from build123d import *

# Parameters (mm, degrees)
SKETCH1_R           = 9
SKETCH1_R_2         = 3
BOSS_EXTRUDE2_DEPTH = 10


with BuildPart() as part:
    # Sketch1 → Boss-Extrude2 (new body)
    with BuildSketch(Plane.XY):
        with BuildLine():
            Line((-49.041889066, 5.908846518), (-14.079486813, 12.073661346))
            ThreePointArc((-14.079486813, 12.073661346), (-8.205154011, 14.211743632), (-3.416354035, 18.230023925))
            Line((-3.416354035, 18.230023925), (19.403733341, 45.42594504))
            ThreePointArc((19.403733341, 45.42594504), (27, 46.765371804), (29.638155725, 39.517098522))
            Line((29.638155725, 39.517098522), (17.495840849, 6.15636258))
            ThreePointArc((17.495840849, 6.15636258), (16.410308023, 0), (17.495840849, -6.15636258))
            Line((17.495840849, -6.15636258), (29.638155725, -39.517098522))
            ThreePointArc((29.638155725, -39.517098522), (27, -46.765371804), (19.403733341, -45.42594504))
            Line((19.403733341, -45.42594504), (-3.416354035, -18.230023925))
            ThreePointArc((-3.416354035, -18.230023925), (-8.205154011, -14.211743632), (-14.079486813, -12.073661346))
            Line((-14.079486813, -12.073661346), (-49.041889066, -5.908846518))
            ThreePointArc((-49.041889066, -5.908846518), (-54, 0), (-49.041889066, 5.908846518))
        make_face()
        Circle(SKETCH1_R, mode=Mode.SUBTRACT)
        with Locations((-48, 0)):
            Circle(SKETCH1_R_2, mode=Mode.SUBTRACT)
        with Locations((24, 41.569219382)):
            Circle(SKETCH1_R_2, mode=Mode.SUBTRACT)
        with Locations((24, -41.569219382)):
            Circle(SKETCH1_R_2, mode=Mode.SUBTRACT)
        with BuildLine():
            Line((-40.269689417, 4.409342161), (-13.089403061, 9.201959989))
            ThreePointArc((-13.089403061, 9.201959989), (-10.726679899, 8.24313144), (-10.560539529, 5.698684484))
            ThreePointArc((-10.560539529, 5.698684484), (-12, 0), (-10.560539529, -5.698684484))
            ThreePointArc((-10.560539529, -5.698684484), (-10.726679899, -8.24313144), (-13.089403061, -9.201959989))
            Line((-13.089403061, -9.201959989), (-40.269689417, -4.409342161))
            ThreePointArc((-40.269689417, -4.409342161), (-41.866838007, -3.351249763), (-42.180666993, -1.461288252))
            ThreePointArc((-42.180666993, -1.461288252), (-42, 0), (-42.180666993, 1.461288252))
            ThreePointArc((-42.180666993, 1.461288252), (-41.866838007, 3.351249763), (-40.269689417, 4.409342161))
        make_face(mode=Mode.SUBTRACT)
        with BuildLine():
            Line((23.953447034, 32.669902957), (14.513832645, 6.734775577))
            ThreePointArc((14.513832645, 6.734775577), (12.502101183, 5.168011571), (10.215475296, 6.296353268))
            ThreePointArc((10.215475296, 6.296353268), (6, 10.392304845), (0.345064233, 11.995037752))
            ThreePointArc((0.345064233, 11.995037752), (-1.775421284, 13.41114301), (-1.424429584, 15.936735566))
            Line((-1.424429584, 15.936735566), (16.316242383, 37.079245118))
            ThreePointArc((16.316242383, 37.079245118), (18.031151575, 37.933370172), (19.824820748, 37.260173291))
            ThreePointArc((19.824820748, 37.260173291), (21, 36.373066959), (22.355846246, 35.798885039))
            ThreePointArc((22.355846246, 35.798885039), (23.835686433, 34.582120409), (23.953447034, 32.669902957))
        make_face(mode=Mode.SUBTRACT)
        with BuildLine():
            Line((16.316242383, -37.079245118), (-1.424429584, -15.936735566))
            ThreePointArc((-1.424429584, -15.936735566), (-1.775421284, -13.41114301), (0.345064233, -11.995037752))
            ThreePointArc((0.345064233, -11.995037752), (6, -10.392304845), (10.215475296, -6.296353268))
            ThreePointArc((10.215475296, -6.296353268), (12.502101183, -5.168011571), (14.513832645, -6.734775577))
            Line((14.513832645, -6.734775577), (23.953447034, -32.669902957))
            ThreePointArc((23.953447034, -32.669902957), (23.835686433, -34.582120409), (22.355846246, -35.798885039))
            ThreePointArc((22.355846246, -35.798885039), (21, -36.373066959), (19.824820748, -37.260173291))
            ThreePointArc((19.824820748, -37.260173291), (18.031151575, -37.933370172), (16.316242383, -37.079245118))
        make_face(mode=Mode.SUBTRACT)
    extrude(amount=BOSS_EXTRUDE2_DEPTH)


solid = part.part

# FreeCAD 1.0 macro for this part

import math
import FreeCAD as App
import Part
import Sketcher
from FreeCAD import Vector
Q = App.Units.Quantity

doc = App.newDocument("Part")
params = doc.addObject("Spreadsheet::Sheet", "Params")
for row, (alias, value) in enumerate([
    ("sketch1_diameter", "6 mm"),
    ("sketch1_diameter2", "18 mm"),
    ("sketch1_radius", "6 mm"),
    ("sketch1_radius2", "18 mm"),
    ("sketch1_radius3", "12 mm"),
    ("pad1_length", "10 mm"),
], start=1):
    params.set(f"A{row}", alias)
    params.set(f"B{row}", "=" + value)
    params.setAlias(f"B{row}", alias)

body = doc.addObject("PartDesign::Body", "Body")

sketch1 = body.newObject("Sketcher::SketchObject", "Sketch")
sketch1.AttachmentSupport = (doc.getObject("XY_Plane"), [""])
sketch1.MapMode = "FlatFace"
sketch1.addGeometry(Part.LineSegment(Vector(-14.079487, 12.073661, 0), Vector(-49.041889, 5.908847, 0)), False)
sketch1.addGeometry(Part.ArcOfCircle(Part.Circle(Vector(-48, 0, 0), Vector(0, 0, 1), 6), math.radians(100), math.radians(260)), False)
sketch1.addGeometry(Part.LineSegment(Vector(-49.041889, -5.908847, 0), Vector(-14.079487, -12.073661, 0)), False)
sketch1.addGeometry(Part.ArcOfCircle(Part.Circle(Vector(-17.205154, -29.800201, 0), Vector(0, 0, 1), 18), math.radians(40), math.radians(80)), False)
sketch1.addGeometry(Part.LineSegment(Vector(-3.416354, -18.230024, 0), Vector(19.403733, -45.425945, 0)), False)
sketch1.addGeometry(Part.ArcOfCircle(Part.Circle(Vector(24, -41.569219, 0), Vector(0, 0, 1), 6), math.radians(-140), math.radians(20)), False)
sketch1.addGeometry(Part.LineSegment(Vector(29.638156, -39.517099, 0), Vector(17.495841, -6.156363, 0)), False)
sketch1.addGeometry(Part.ArcOfCircle(Part.Circle(Vector(34.410308, 0, 0), Vector(0, 0, 1), 18), math.radians(160), math.radians(200)), False)
sketch1.addGeometry(Part.LineSegment(Vector(17.495841, 6.156363, 0), Vector(29.638156, 39.517099, 0)), False)
sketch1.addGeometry(Part.ArcOfCircle(Part.Circle(Vector(24, 41.569219, 0), Vector(0, 0, 1), 6), math.radians(-20), math.radians(140)), False)
sketch1.addGeometry(Part.LineSegment(Vector(19.403733, 45.425945, 0), Vector(-3.416354, 18.230024, 0)), False)
sketch1.addGeometry(Part.ArcOfCircle(Part.Circle(Vector(-17.205154, 29.800201, 0), Vector(0, 0, 1), 18), math.radians(-80), math.radians(-40)), False)
sketch1.addGeometry(Part.Circle(Vector(24, -41.569219, 0), Vector(0, 0, 1), 3), False)
sketch1.addGeometry(Part.LineSegment(Vector(16.316242, -37.079245, 0), Vector(-1.42443, -15.936736, 0)), False)
sketch1.addGeometry(Part.ArcOfCircle(Part.Circle(Vector(0.414077, -14.394045, 0), Vector(0, 0, 1), 2.4), math.radians(91.647787), math.radians(220)), False)
sketch1.addGeometry(Part.ArcOfCircle(Part.Circle(Vector(0, 0, 0), Vector(0, 0, 1), 12), math.radians(-88.352213), math.radians(-31.647787)), False)
sketch1.addGeometry(Part.ArcOfCircle(Part.Circle(Vector(12.25857, -7.555624, 0), Vector(0, 0, 1), 2.4), math.radians(20), math.radians(148.352213)), False)
sketch1.addGeometry(Part.LineSegment(Vector(14.513833, -6.734776, 0), Vector(23.953447, -32.669903, 0)), False)
sketch1.addGeometry(Part.ArcOfCircle(Part.Circle(Vector(21.698185, -33.490751, 0), Vector(0, 0, 1), 2.4), math.radians(-74.096044), math.radians(20)), False)
sketch1.addGeometry(Part.ArcOfCircle(Part.Circle(Vector(24, -41.569219, 0), Vector(0, 0, 1), 6), math.radians(105.903956), math.radians(134.096044)), False)
sketch1.addGeometry(Part.ArcOfCircle(Part.Circle(Vector(18.154749, -35.536555, 0), Vector(0, 0, 1), 2.4), math.radians(-140), math.radians(-45.903956)), False)
sketch1.addGeometry(Part.LineSegment(Vector(23.953447, 32.669903, 0), Vector(14.513833, 6.734776, 0)), False)
sketch1.addGeometry(Part.ArcOfCircle(Part.Circle(Vector(12.25857, 7.555624, 0), Vector(0, 0, 1), 2.4), math.radians(-148.352213), math.radians(-20)), False)
sketch1.addGeometry(Part.ArcOfCircle(Part.Circle(Vector(0, 0, 0), Vector(0, 0, 1), 12), math.radians(31.647787), math.radians(88.352213)), False)
sketch1.addGeometry(Part.ArcOfCircle(Part.Circle(Vector(0.414077, 14.394045, 0), Vector(0, 0, 1), 2.4), math.radians(140), math.radians(268.352213)), False)
sketch1.addGeometry(Part.LineSegment(Vector(-1.42443, 15.936736, 0), Vector(16.316242, 37.079245, 0)), False)
sketch1.addGeometry(Part.ArcOfCircle(Part.Circle(Vector(18.154749, 35.536555, 0), Vector(0, 0, 1), 2.4), math.radians(45.903956), math.radians(140)), False)
sketch1.addGeometry(Part.ArcOfCircle(Part.Circle(Vector(24, 41.569219, 0), Vector(0, 0, 1), 6), math.radians(-134.096044), math.radians(-105.903956)), False)
sketch1.addGeometry(Part.ArcOfCircle(Part.Circle(Vector(21.698185, 33.490751, 0), Vector(0, 0, 1), 2.4), math.radians(-20), math.radians(74.096044)), False)
sketch1.addGeometry(Part.Circle(Vector(0, 0, 0), Vector(0, 0, 1), 9), False)
sketch1.addGeometry(Part.Circle(Vector(24, 41.569219, 0), Vector(0, 0, 1), 3), False)
sketch1.addGeometry(Part.LineSegment(Vector(-40.269689, 4.409342, 0), Vector(-13.089403, 9.20196, 0)), False)
sketch1.addGeometry(Part.ArcOfCircle(Part.Circle(Vector(-12.672647, 6.838421, 0), Vector(0, 0, 1), 2.4), math.radians(-28.352213), math.radians(100)), False)
sketch1.addGeometry(Part.ArcOfCircle(Part.Circle(Vector(0, 0, 0), Vector(0, 0, 1), 12), math.radians(151.647787), math.radians(208.352213)), False)
sketch1.addGeometry(Part.ArcOfCircle(Part.Circle(Vector(-12.672647, -6.838421, 0), Vector(0, 0, 1), 2.4), math.radians(-100), math.radians(28.352213)), False)
sketch1.addGeometry(Part.LineSegment(Vector(-13.089403, -9.20196, 0), Vector(-40.269689, -4.409342, 0)), False)
sketch1.addGeometry(Part.ArcOfCircle(Part.Circle(Vector(-39.852934, -2.045804, 0), Vector(0, 0, 1), 2.4), math.radians(165.903956), math.radians(260)), False)
sketch1.addGeometry(Part.ArcOfCircle(Part.Circle(Vector(-48, 0, 0), Vector(0, 0, 1), 6), math.radians(-14.096044), math.radians(14.096044)), False)
sketch1.addGeometry(Part.ArcOfCircle(Part.Circle(Vector(-39.852934, 2.045804, 0), Vector(0, 0, 1), 2.4), math.radians(100), math.radians(194.096044)), False)
sketch1.addGeometry(Part.Circle(Vector(-48, 0, 0), Vector(0, 0, 1), 3), False)
sketch1.addConstraint(Sketcher.Constraint("Tangent", 0, 2, 1, 1))
sketch1.addConstraint(Sketcher.Constraint("Tangent", 1, 2, 2, 1))
sketch1.addConstraint(Sketcher.Constraint("Tangent", 2, 2, 3, 2))
sketch1.addConstraint(Sketcher.Constraint("Tangent", 3, 1, 4, 1))
sketch1.addConstraint(Sketcher.Constraint("Tangent", 4, 2, 5, 1))
sketch1.addConstraint(Sketcher.Constraint("Tangent", 5, 2, 6, 1))
sketch1.addConstraint(Sketcher.Constraint("Tangent", 6, 2, 7, 2))
sketch1.addConstraint(Sketcher.Constraint("Tangent", 7, 1, 8, 1))
sketch1.addConstraint(Sketcher.Constraint("Tangent", 8, 2, 9, 1))
sketch1.addConstraint(Sketcher.Constraint("Tangent", 9, 2, 10, 1))
sketch1.addConstraint(Sketcher.Constraint("Tangent", 10, 2, 11, 2))
sketch1.addConstraint(Sketcher.Constraint("Tangent", 11, 1, 0, 1))
sketch1.addConstraint(Sketcher.Constraint("Tangent", 13, 2, 14, 2))
sketch1.addConstraint(Sketcher.Constraint("Tangent", 14, 1, 15, 1))
sketch1.addConstraint(Sketcher.Constraint("Tangent", 15, 2, 16, 2))
sketch1.addConstraint(Sketcher.Constraint("Tangent", 16, 1, 17, 1))
sketch1.addConstraint(Sketcher.Constraint("Tangent", 17, 2, 18, 2))
sketch1.addConstraint(Sketcher.Constraint("Tangent", 18, 1, 19, 1))
sketch1.addConstraint(Sketcher.Constraint("Tangent", 19, 2, 20, 2))
sketch1.addConstraint(Sketcher.Constraint("Tangent", 20, 1, 13, 1))
sketch1.addConstraint(Sketcher.Constraint("Tangent", 21, 2, 22, 2))
sketch1.addConstraint(Sketcher.Constraint("Tangent", 22, 1, 23, 1))
sketch1.addConstraint(Sketcher.Constraint("Tangent", 23, 2, 24, 2))
sketch1.addConstraint(Sketcher.Constraint("Tangent", 24, 1, 25, 1))
sketch1.addConstraint(Sketcher.Constraint("Tangent", 25, 2, 26, 2))
sketch1.addConstraint(Sketcher.Constraint("Tangent", 26, 1, 27, 1))
sketch1.addConstraint(Sketcher.Constraint("Tangent", 27, 2, 28, 2))
sketch1.addConstraint(Sketcher.Constraint("Tangent", 28, 1, 21, 1))
sketch1.addConstraint(Sketcher.Constraint("Tangent", 31, 2, 32, 2))
sketch1.addConstraint(Sketcher.Constraint("Tangent", 32, 1, 33, 1))
sketch1.addConstraint(Sketcher.Constraint("Tangent", 33, 2, 34, 2))
sketch1.addConstraint(Sketcher.Constraint("Tangent", 34, 1, 35, 1))
sketch1.addConstraint(Sketcher.Constraint("Tangent", 35, 2, 36, 2))
sketch1.addConstraint(Sketcher.Constraint("Tangent", 36, 1, 37, 1))
sketch1.addConstraint(Sketcher.Constraint("Tangent", 37, 2, 38, 2))
sketch1.addConstraint(Sketcher.Constraint("Tangent", 38, 1, 31, 1))
sketch1.addConstraint(Sketcher.Constraint("Coincident", 15, 3, -1, 1))
sketch1.addConstraint(Sketcher.Constraint("Coincident", 23, 3, -1, 1))
sketch1.addConstraint(Sketcher.Constraint("Coincident", 29, 3, -1, 1))
sketch1.addConstraint(Sketcher.Constraint("Coincident", 33, 3, -1, 1))
sketch1.addConstraint(Sketcher.Constraint("Coincident", 12, 3, 5, 3))
sketch1.addConstraint(Sketcher.Constraint("Coincident", 19, 3, 5, 3))
sketch1.addConstraint(Sketcher.Constraint("Coincident", 27, 3, 9, 3))
sketch1.addConstraint(Sketcher.Constraint("Coincident", 30, 3, 9, 3))
sketch1.addConstraint(Sketcher.Constraint("Coincident", 37, 3, 1, 3))
sketch1.addConstraint(Sketcher.Constraint("Coincident", 39, 3, 1, 3))
sketch1.addConstraint(Sketcher.Constraint("Equal", 1, 5))
sketch1.addConstraint(Sketcher.Constraint("Equal", 3, 7))
sketch1.addConstraint(Sketcher.Constraint("Equal", 5, 9))
sketch1.addConstraint(Sketcher.Constraint("Equal", 7, 11))
sketch1.addConstraint(Sketcher.Constraint("Equal", 14, 16))
sketch1.addConstraint(Sketcher.Constraint("Equal", 16, 18))
sketch1.addConstraint(Sketcher.Constraint("Equal", 9, 19))
sketch1.addConstraint(Sketcher.Constraint("Equal", 18, 20))
sketch1.addConstraint(Sketcher.Constraint("Equal", 20, 22))
sketch1.addConstraint(Sketcher.Constraint("Equal", 15, 23))
sketch1.addConstraint(Sketcher.Constraint("Equal", 22, 24))
sketch1.addConstraint(Sketcher.Constraint("Equal", 24, 26))
sketch1.addConstraint(Sketcher.Constraint("Equal", 19, 27))
sketch1.addConstraint(Sketcher.Constraint("Equal", 26, 28))
sketch1.addConstraint(Sketcher.Constraint("Equal", 12, 30))
sketch1.addConstraint(Sketcher.Constraint("Equal", 28, 32))
sketch1.addConstraint(Sketcher.Constraint("Equal", 23, 33))
sketch1.addConstraint(Sketcher.Constraint("Equal", 32, 34))
sketch1.addConstraint(Sketcher.Constraint("Equal", 34, 36))
sketch1.addConstraint(Sketcher.Constraint("Equal", 27, 37))
sketch1.addConstraint(Sketcher.Constraint("Equal", 36, 38))
sketch1.addConstraint(Sketcher.Constraint("Equal", 30, 39))
sketch1.addConstraint(Sketcher.Constraint("Symmetric", 5, 3, 9, 3, -1))
sketch1.addConstraint(Sketcher.Constraint("Symmetric", 3, 3, 11, 3, -1))
sketch1.addConstraint(Sketcher.Constraint("Symmetric", 36, 3, 38, 3, -1))
sketch1.addConstraint(Sketcher.Constraint("Symmetric", 16, 1, 21, 2, -1))
sketch1.addConstraint(Sketcher.Constraint("Symmetric", 13, 2, 24, 1, -1))
sketch1.addConstraint(Sketcher.Constraint("PointOnObject", 7, 3, -1))
sketch1.addConstraint(Sketcher.Constraint("Parallel", 4, 13))
sketch1.addConstraint(Sketcher.Constraint("Parallel", 6, 17))
sketch1.addConstraint(Sketcher.Constraint("Parallel", 0, 31))
sketch1.addConstraint(Sketcher.Constraint("Parallel", 2, 35))
sketch1.addConstraint(Sketcher.Constraint("Equal", 2, 4))
sketch1.addConstraint(Sketcher.Constraint("Equal", 4, 6))
sketch1.addConstraint(Sketcher.Constraint("Equal", 13, 17))
sketch1.addConstraint(Sketcher.Constraint("Equal", 25, 31))
sketch1.addConstraint(Sketcher.Constraint("Diameter", 12, 6.0))
sketch1.addConstraint(Sketcher.Constraint("Diameter", 29, 18.0))
sketch1.addConstraint(Sketcher.Constraint("Radius", 1, 6.0))
sketch1.addConstraint(Sketcher.Constraint("Radius", 3, 18.0))
sketch1.addConstraint(Sketcher.Constraint("Radius", 15, 12.0))
sketch1.addConstraint(Sketcher.Constraint("Radius", 14, 2.4))
sketch1.addConstraint(Sketcher.Constraint("Angle", 0, Q("-170 deg")))
sketch1.addConstraint(Sketcher.Constraint("Angle", 4, Q("-50 deg")))
sketch1.addConstraint(Sketcher.Constraint("DistanceX", 1, 3, -1, 1, 48.0))
sketch1.addConstraint(Sketcher.Constraint("DistanceX", -1, 1, 5, 3, 24.0))
sketch1.addConstraint(Sketcher.Constraint("DistanceX", -1, 1, 16, 3, 12.25857))
sketch1.setExpression("Constraints[82]", "Params.sketch1_diameter")
sketch1.setExpression("Constraints[83]", "Params.sketch1_diameter2")
sketch1.setExpression("Constraints[84]", "Params.sketch1_radius")
sketch1.setExpression("Constraints[85]", "Params.sketch1_radius2")
sketch1.setExpression("Constraints[86]", "Params.sketch1_radius3")
pad1 = body.newObject("PartDesign::Pad", "Pad")
pad1.Profile = sketch1
pad1.setExpression("Length", "Params.pad1_length")

doc.recompute()
